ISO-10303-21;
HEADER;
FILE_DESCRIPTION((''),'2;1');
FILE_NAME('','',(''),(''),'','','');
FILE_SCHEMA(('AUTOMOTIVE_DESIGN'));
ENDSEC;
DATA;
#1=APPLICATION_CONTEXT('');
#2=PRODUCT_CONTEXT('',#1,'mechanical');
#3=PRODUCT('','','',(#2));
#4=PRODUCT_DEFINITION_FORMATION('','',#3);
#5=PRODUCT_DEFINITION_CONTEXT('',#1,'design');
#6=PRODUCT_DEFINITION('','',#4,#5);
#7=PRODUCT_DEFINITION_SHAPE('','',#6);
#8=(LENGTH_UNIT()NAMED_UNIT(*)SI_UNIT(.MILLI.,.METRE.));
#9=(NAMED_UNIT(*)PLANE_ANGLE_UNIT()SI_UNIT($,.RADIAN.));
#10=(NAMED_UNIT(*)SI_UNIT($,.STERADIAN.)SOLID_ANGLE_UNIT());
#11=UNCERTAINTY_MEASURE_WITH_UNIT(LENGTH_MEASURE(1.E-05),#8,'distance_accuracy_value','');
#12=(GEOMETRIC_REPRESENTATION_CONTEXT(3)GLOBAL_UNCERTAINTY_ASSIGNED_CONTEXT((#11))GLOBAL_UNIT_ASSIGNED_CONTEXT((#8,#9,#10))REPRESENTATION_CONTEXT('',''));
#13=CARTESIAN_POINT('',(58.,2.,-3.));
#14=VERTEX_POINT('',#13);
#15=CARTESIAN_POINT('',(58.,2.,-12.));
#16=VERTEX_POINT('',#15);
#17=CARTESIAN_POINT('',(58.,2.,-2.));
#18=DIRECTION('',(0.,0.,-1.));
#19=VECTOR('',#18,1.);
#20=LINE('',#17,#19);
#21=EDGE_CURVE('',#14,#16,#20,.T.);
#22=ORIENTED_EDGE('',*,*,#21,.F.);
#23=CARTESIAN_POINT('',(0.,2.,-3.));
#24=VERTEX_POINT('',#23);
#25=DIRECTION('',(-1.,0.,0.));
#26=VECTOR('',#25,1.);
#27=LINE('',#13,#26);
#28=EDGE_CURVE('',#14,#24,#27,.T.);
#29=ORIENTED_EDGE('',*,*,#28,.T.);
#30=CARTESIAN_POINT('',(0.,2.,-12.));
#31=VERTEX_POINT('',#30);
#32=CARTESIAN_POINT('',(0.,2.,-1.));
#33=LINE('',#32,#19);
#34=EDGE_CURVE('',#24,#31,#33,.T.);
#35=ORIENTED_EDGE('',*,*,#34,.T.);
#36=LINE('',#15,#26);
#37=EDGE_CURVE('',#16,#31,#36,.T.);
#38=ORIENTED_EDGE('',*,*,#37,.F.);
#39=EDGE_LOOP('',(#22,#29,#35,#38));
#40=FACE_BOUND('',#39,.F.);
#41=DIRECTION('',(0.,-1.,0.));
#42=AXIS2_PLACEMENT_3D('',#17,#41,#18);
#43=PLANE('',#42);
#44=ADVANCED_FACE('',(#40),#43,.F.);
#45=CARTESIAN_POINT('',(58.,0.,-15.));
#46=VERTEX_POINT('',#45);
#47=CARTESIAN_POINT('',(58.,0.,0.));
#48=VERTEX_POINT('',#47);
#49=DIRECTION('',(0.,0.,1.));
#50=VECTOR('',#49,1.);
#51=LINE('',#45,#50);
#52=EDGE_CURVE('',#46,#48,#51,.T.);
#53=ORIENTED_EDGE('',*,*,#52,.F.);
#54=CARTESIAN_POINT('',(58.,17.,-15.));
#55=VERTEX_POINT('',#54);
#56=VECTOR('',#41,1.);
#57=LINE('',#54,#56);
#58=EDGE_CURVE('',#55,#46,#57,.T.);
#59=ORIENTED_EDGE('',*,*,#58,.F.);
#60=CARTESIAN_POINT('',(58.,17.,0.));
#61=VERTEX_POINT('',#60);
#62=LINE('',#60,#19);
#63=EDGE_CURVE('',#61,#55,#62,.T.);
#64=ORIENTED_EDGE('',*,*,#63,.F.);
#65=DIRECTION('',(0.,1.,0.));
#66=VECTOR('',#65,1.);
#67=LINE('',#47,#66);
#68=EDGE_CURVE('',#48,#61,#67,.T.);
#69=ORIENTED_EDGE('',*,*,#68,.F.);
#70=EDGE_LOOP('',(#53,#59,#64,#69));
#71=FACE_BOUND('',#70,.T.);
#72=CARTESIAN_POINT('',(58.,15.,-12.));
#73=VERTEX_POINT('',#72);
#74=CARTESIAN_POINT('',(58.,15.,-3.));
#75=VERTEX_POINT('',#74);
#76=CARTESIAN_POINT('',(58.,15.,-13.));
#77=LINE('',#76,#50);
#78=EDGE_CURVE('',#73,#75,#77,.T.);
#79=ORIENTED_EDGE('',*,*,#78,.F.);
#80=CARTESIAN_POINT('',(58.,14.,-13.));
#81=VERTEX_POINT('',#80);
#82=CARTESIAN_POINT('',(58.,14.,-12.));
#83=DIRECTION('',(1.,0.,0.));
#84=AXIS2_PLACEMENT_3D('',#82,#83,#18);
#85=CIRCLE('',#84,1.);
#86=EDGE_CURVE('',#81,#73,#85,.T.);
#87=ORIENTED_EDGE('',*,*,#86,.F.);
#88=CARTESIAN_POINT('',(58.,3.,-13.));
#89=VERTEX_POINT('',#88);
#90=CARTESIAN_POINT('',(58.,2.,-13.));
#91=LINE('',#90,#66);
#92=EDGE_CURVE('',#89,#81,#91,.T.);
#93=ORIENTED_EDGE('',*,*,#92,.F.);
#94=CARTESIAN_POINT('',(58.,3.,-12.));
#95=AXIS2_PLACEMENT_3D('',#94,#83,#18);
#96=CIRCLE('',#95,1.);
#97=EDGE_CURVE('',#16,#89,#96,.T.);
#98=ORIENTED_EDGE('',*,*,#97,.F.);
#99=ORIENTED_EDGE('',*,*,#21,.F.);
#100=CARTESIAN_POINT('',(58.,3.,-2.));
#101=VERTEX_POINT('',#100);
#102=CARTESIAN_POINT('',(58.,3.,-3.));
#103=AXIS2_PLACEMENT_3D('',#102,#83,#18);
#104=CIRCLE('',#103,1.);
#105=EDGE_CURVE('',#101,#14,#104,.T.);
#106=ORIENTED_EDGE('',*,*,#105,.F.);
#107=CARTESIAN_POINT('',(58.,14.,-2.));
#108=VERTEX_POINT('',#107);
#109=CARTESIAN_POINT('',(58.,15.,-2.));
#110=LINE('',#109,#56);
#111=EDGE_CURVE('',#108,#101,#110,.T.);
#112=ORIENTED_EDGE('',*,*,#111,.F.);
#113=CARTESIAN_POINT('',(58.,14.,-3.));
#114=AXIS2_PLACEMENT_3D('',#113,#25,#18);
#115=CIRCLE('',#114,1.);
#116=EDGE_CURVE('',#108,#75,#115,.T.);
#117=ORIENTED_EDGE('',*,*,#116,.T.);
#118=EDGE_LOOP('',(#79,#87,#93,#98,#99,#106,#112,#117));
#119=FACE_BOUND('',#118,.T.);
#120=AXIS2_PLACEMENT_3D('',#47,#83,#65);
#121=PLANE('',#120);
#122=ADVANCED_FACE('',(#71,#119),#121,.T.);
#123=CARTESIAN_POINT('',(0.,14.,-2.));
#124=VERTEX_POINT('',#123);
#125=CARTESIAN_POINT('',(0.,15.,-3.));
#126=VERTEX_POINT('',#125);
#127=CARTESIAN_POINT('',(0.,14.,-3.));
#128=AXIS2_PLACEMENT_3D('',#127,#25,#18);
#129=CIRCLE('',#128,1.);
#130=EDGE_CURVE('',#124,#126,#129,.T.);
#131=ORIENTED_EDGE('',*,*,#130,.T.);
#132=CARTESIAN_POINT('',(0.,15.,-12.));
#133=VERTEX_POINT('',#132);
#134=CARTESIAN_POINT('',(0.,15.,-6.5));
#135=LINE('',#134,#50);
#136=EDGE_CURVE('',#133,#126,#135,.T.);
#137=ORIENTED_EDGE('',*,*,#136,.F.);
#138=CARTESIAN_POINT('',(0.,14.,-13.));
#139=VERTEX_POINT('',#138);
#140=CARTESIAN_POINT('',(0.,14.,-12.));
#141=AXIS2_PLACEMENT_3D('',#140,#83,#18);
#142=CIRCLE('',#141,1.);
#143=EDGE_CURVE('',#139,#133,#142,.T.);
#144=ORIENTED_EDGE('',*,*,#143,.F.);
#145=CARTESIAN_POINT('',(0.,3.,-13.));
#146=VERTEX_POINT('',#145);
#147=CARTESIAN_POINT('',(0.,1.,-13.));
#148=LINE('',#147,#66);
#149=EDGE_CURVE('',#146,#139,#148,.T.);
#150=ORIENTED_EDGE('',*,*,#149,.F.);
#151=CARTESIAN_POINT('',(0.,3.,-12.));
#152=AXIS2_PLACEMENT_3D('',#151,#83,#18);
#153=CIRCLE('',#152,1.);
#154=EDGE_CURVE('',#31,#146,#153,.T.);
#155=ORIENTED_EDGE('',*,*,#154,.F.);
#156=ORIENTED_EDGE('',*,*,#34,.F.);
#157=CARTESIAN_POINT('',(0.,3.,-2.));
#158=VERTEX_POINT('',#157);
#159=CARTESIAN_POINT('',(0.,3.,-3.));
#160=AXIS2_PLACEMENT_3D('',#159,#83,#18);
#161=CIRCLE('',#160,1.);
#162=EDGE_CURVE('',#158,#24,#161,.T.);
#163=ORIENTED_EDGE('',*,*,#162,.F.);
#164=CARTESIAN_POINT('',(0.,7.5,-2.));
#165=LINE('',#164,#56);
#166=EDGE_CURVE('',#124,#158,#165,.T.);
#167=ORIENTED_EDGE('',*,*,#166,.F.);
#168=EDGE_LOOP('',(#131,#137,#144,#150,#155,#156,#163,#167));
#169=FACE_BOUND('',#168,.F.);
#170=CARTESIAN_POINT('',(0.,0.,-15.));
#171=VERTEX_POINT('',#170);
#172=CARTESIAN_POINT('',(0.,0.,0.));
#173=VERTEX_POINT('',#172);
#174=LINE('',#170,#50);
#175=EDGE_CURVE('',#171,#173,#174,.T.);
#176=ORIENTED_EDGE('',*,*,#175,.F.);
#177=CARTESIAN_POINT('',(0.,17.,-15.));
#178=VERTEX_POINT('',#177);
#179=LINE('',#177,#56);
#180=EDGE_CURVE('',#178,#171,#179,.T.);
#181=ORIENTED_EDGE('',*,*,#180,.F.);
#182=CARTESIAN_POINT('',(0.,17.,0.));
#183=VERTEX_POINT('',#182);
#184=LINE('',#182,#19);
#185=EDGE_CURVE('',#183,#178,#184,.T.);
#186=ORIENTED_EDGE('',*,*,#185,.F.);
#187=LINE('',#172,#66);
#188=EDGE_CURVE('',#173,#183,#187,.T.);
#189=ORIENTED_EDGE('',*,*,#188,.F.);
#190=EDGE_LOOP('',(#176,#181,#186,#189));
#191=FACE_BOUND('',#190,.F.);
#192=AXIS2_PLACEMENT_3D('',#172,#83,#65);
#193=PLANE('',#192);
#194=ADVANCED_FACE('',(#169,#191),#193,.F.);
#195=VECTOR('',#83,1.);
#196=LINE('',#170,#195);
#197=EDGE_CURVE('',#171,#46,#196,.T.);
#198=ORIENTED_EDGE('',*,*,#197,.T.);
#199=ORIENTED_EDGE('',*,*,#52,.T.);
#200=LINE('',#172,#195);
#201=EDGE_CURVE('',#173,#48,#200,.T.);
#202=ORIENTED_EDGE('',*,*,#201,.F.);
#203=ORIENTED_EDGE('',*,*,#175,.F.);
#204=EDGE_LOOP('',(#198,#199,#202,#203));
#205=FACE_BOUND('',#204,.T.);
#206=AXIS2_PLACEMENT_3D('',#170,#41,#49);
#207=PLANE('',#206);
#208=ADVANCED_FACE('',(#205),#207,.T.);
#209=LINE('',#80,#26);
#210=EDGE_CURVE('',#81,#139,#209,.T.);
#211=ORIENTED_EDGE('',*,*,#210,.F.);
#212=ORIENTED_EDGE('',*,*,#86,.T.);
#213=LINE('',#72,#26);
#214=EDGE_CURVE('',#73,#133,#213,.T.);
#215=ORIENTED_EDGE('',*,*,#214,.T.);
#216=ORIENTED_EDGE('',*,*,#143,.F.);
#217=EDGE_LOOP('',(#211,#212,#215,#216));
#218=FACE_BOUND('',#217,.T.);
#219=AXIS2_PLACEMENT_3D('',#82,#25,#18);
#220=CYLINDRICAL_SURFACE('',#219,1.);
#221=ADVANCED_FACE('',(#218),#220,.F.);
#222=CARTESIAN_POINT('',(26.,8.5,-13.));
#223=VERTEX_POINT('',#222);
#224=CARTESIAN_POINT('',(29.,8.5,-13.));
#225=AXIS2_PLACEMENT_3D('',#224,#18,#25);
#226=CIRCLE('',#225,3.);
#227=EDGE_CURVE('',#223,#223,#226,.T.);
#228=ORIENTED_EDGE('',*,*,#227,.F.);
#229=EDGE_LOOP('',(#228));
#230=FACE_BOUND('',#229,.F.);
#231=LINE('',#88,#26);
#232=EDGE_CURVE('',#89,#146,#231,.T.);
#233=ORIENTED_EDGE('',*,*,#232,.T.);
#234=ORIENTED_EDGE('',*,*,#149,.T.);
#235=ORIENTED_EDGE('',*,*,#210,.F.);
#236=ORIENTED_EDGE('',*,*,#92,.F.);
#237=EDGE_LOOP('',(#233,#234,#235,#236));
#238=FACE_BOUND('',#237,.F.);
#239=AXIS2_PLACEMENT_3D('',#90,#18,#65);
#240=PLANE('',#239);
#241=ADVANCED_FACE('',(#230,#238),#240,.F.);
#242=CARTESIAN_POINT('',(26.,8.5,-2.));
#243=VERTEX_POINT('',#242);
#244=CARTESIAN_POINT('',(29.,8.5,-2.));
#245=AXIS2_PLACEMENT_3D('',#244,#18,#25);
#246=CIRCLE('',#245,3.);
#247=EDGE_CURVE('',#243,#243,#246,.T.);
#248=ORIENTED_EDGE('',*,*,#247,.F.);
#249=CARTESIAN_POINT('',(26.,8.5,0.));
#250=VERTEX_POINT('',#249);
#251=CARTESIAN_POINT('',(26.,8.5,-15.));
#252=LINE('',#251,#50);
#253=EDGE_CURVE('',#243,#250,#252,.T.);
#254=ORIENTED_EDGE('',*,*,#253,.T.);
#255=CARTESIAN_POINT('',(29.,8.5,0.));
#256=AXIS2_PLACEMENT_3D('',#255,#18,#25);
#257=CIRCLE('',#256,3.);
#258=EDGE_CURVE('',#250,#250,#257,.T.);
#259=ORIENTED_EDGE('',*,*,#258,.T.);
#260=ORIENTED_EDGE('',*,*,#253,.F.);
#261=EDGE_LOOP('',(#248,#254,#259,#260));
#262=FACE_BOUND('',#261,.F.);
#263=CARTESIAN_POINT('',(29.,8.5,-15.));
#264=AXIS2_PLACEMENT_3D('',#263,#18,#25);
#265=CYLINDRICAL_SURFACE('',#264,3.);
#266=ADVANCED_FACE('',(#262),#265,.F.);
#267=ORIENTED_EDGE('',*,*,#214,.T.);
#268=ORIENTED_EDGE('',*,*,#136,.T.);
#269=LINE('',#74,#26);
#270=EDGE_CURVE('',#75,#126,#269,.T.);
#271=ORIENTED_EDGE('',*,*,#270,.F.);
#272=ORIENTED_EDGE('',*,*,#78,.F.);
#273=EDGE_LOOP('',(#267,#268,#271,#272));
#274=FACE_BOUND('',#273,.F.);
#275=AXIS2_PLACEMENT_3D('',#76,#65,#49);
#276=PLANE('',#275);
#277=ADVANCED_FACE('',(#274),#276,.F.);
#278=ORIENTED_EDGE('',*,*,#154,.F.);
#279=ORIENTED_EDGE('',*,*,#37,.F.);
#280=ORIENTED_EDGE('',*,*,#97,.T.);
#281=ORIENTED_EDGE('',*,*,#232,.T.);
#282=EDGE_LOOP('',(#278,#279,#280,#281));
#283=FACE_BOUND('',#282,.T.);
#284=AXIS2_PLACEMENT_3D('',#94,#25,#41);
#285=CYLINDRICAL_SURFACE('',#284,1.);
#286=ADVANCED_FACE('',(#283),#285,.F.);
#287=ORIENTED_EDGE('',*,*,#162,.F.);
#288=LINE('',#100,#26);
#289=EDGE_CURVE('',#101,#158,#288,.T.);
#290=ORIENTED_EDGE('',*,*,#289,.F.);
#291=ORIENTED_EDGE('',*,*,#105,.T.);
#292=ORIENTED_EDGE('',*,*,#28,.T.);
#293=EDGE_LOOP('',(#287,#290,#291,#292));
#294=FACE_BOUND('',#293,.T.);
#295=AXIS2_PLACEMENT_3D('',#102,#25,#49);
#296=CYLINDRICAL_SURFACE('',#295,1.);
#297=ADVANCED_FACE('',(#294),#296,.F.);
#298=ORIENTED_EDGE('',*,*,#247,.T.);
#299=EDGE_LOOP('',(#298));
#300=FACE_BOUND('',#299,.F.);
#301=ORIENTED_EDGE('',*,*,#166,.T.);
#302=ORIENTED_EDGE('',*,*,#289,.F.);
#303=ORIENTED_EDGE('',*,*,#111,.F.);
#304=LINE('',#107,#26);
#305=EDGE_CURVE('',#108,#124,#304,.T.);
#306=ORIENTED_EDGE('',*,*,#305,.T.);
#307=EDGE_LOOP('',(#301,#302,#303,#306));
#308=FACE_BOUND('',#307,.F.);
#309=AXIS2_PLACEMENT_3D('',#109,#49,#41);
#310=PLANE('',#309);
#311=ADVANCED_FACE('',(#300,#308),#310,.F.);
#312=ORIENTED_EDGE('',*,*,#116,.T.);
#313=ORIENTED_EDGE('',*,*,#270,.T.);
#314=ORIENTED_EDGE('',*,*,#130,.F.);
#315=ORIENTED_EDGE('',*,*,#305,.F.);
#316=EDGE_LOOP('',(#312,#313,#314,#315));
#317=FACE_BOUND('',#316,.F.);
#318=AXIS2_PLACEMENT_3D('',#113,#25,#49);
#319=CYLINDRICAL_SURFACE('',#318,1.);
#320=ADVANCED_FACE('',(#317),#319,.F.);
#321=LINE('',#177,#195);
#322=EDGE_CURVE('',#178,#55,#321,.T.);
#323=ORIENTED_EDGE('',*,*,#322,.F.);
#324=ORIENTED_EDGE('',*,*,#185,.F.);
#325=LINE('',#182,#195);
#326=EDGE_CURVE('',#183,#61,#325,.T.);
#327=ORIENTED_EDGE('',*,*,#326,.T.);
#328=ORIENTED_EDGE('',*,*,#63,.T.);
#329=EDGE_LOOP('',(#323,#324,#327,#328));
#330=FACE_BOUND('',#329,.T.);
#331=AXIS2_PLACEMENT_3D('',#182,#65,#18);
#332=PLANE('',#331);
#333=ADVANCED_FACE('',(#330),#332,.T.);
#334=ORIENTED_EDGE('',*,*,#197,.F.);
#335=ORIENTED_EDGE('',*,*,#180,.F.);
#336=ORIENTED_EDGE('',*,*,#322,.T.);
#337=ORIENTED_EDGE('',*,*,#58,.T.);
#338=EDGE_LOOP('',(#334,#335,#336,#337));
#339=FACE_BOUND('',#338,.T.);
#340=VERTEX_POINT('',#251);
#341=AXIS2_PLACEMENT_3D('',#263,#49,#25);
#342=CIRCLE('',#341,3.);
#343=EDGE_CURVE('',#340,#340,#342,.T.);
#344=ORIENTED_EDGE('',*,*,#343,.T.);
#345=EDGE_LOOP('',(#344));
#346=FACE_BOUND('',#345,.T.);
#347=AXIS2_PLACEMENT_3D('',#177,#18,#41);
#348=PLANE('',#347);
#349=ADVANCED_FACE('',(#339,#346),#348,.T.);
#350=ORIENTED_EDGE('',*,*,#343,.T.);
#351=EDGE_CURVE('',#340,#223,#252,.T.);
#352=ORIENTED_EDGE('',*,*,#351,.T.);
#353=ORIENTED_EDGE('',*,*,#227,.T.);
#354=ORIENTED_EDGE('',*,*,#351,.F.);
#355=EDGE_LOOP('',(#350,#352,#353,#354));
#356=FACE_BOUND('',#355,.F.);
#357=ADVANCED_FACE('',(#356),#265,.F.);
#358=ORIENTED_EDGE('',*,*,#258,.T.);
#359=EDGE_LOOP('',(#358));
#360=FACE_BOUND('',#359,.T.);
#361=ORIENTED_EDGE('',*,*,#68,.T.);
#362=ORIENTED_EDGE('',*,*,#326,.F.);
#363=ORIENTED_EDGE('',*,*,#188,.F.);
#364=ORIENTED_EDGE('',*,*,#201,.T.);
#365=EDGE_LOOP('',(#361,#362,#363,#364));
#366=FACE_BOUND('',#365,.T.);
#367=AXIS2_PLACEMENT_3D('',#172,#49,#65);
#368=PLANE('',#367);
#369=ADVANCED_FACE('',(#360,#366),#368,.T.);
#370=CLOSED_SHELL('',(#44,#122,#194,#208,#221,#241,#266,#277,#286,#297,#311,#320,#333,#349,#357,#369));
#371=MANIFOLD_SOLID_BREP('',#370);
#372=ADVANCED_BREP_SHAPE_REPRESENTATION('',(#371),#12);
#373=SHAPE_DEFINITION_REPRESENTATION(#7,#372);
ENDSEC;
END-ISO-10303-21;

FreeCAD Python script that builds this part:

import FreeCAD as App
import Part
import Sketcher
from FreeCAD import Vector
Q = App.Units.Quantity


def edges_at(feature, points):
    """Names of the edges that pass closest to the given points."""
    edges = feature.Shape.Edges
    near = lambda p: min(range(len(edges)), key=lambda i: edges[i].distToShape(Part.Vertex(*p))[0])
    return sorted({f"Edge{near(p) + 1}" for p in points})


def add_polygon(sketch, points):
    """Adds a closed chain of lines whose ends are joined by coincident constraints."""
    first, n = sketch.GeometryCount, len(points)
    for a, b in zip(points, points[1:] + points[:1]):
        sketch.addGeometry(Part.LineSegment(App.Vector(*a, 0), App.Vector(*b, 0)), False)
    for i in range(n):
        sketch.addConstraint(Sketcher.Constraint("Coincident", first + i, 2, first + (i + 1) % n, 1))

doc = App.newDocument("Part")
body = doc.addObject("PartDesign::Body", "Body")

# Sketch on YZ plane
sketch1 = doc.addObject("Sketcher::SketchObject", "Sketch")
body.addObject(sketch1)
sketch1.AttachmentSupport = (doc.YZ_Plane, [""])
sketch1.MapMode = "FlatFace"
add_polygon(sketch1, [(17, 0), (0, 0), (0, -15), (17, -15)])  # lines 0-3
sketch1.addConstraint([
    Sketcher.Constraint("Horizontal", 0),
    Sketcher.Constraint("Vertical", 1),
    Sketcher.Constraint("Horizontal", 2),
    Sketcher.Constraint("Vertical", 3),
    Sketcher.Constraint("Coincident", 0, 2, -1, 1),
    Sketcher.Constraint("DistanceX", 0, 2, 0, 1, Q("17 mm")),
    Sketcher.Constraint("DistanceY", 1, 2, 1, 1, Q("15 mm")),
])
pad1 = doc.addObject("PartDesign::Pad", "Pad")
body.addObject(pad1)
pad1.Profile = sketch1
pad1.Length = 58

# Sketch on YZ plane
sketch2 = doc.addObject("Sketcher::SketchObject", "Sketch001")
body.addObject(sketch2)
sketch2.AttachmentSupport = (doc.YZ_Plane, [""])
sketch2.MapMode = "FlatFace"
sketch2.AttachmentOffset = App.Placement(Vector(0, 0, 58), App.Rotation())
add_polygon(sketch2, [(15, -2), (2, -2), (2, -13), (15, -13)])  # lines 0-3
sketch2.addConstraint([
    Sketcher.Constraint("Horizontal", 0),
    Sketcher.Constraint("Vertical", 1),
    Sketcher.Constraint("Horizontal", 2),
    Sketcher.Constraint("Vertical", 3),
    Sketcher.Constraint("DistanceX", 0, 2, 0, 1, Q("13 mm")),
    Sketcher.Constraint("DistanceY", 1, 2, 1, 1, Q("11 mm")),
    Sketcher.Constraint("DistanceY", 1, 2, -1, 1, Q("13 mm")),
    Sketcher.Constraint("DistanceX", -1, 1, 0, 2, Q("2 mm")),
])
pocket1 = doc.addObject("PartDesign::Pocket", "Pocket")
body.addObject(pocket1)
pocket1.Profile = sketch2
pocket1.Type = "ThroughAll"

# Sketch on XY plane
sketch3 = doc.addObject("Sketcher::SketchObject", "Sketch002")
body.addObject(sketch3)
sketch3.AttachmentSupport = (doc.XY_Plane, [""])
sketch3.MapMode = "FlatFace"
sketch3.AttachmentOffset = App.Placement(Vector(0, 0, -15), App.Rotation())
sketch3.addGeometry(Part.Circle(Vector(29, 8.5, 0), Vector(0, 0, 1), 3), False)
sketch3.addConstraint([
    Sketcher.Constraint("Diameter", 0, Q("6 mm")),
    Sketcher.Constraint("DistanceX", -1, 1, 0, 3, Q("29 mm")),
    Sketcher.Constraint("DistanceY", -1, 1, 0, 3, Q("8.5 mm")),
])
pocket2 = doc.addObject("PartDesign::Pocket", "Pocket001")
body.addObject(pocket2)
pocket2.Profile = sketch3
pocket2.Type = "ThroughAll"
pocket2.Reversed = True
doc.recompute()

fillet = doc.addObject("PartDesign::Fillet", "Fillet")
body.addObject(fillet)
fillet.Base = (pocket2, edges_at(pocket2, [
    (29, 2, -13),
    (29, 2, -2),
    (29, 15, -2),
    (29, 15, -13),
]))
fillet.Radius = 1

doc.recompute()
